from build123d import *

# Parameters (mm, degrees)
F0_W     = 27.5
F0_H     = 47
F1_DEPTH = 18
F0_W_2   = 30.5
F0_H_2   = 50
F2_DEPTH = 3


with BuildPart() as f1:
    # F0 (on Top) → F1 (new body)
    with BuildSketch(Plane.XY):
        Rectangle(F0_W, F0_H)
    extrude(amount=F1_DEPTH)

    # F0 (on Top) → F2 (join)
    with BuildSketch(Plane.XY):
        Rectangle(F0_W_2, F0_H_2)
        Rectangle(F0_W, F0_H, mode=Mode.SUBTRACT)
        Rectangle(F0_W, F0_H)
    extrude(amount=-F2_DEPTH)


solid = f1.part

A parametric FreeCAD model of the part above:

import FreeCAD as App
import Part
import Sketcher

V = App.Vector


def add_polygon(sketch, points):
    """Adds a closed chain of lines whose ends are joined by coincident constraints."""
    first, n = sketch.GeometryCount, len(points)
    for a, b in zip(points, points[1:] + points[:1]):
        sketch.addGeometry(Part.LineSegment(App.Vector(*a, 0), App.Vector(*b, 0)), False)
    for i in range(n):
        sketch.addConstraint(Sketcher.Constraint("Coincident", first + i, 2, first + (i + 1) % n, 1))

doc = App.newDocument("Part")
body = doc.addObject("PartDesign::Body", "Body")

# Sketch on XY plane
sketch1 = body.newObject("Sketcher::SketchObject", "Sketch")
sketch1.AttachmentSupport = (doc.getObject("XY_Plane"), [""])
sketch1.MapMode = "FlatFace"
add_polygon(sketch1, [(-13.75, 23.5), (-13.75, -23.5), (13.75, -23.5), (13.75, 23.5)])  # lines 0-3
sketch1.addConstraint([
    Sketcher.Constraint("Vertical", 0),
    Sketcher.Constraint("Horizontal", 1),
    Sketcher.Constraint("Vertical", 2),
    Sketcher.Constraint("Horizontal", 3),
    Sketcher.Constraint("Symmetric", 0, 2, 2, 2, -1, 1),
    Sketcher.Constraint("DistanceY", 0, 2, 0, 1, 47.0),
    Sketcher.Constraint("DistanceX", 1, 1, 1, 2, 27.5),
])
pad1 = body.newObject("PartDesign::Pad", "Pad")
pad1.Profile = sketch1
pad1.Length = 18

# Sketch on XY plane
sketch2 = body.newObject("Sketcher::SketchObject", "Sketch001")
sketch2.AttachmentSupport = (doc.getObject("XY_Plane"), [""])
sketch2.MapMode = "FlatFace"
add_polygon(sketch2, [(-15.25, 25), (-15.25, -25), (15.25, -25), (15.25, 25)])  # lines 0-3
sketch2.addConstraint([
    Sketcher.Constraint("Vertical", 0),
    Sketcher.Constraint("Horizontal", 1),
    Sketcher.Constraint("Vertical", 2),
    Sketcher.Constraint("Horizontal", 3),
    Sketcher.Constraint("Symmetric", 0, 2, 2, 2, -1, 1),
    Sketcher.Constraint("DistanceY", 0, 2, 0, 1, 50.0),
    Sketcher.Constraint("DistanceX", 1, 1, 1, 2, 30.5),
])
pad2 = body.newObject("PartDesign::Pad", "Pad001")
pad2.Profile = sketch2
pad2.Length = 3
pad2.Reversed = True

doc.recompute()
